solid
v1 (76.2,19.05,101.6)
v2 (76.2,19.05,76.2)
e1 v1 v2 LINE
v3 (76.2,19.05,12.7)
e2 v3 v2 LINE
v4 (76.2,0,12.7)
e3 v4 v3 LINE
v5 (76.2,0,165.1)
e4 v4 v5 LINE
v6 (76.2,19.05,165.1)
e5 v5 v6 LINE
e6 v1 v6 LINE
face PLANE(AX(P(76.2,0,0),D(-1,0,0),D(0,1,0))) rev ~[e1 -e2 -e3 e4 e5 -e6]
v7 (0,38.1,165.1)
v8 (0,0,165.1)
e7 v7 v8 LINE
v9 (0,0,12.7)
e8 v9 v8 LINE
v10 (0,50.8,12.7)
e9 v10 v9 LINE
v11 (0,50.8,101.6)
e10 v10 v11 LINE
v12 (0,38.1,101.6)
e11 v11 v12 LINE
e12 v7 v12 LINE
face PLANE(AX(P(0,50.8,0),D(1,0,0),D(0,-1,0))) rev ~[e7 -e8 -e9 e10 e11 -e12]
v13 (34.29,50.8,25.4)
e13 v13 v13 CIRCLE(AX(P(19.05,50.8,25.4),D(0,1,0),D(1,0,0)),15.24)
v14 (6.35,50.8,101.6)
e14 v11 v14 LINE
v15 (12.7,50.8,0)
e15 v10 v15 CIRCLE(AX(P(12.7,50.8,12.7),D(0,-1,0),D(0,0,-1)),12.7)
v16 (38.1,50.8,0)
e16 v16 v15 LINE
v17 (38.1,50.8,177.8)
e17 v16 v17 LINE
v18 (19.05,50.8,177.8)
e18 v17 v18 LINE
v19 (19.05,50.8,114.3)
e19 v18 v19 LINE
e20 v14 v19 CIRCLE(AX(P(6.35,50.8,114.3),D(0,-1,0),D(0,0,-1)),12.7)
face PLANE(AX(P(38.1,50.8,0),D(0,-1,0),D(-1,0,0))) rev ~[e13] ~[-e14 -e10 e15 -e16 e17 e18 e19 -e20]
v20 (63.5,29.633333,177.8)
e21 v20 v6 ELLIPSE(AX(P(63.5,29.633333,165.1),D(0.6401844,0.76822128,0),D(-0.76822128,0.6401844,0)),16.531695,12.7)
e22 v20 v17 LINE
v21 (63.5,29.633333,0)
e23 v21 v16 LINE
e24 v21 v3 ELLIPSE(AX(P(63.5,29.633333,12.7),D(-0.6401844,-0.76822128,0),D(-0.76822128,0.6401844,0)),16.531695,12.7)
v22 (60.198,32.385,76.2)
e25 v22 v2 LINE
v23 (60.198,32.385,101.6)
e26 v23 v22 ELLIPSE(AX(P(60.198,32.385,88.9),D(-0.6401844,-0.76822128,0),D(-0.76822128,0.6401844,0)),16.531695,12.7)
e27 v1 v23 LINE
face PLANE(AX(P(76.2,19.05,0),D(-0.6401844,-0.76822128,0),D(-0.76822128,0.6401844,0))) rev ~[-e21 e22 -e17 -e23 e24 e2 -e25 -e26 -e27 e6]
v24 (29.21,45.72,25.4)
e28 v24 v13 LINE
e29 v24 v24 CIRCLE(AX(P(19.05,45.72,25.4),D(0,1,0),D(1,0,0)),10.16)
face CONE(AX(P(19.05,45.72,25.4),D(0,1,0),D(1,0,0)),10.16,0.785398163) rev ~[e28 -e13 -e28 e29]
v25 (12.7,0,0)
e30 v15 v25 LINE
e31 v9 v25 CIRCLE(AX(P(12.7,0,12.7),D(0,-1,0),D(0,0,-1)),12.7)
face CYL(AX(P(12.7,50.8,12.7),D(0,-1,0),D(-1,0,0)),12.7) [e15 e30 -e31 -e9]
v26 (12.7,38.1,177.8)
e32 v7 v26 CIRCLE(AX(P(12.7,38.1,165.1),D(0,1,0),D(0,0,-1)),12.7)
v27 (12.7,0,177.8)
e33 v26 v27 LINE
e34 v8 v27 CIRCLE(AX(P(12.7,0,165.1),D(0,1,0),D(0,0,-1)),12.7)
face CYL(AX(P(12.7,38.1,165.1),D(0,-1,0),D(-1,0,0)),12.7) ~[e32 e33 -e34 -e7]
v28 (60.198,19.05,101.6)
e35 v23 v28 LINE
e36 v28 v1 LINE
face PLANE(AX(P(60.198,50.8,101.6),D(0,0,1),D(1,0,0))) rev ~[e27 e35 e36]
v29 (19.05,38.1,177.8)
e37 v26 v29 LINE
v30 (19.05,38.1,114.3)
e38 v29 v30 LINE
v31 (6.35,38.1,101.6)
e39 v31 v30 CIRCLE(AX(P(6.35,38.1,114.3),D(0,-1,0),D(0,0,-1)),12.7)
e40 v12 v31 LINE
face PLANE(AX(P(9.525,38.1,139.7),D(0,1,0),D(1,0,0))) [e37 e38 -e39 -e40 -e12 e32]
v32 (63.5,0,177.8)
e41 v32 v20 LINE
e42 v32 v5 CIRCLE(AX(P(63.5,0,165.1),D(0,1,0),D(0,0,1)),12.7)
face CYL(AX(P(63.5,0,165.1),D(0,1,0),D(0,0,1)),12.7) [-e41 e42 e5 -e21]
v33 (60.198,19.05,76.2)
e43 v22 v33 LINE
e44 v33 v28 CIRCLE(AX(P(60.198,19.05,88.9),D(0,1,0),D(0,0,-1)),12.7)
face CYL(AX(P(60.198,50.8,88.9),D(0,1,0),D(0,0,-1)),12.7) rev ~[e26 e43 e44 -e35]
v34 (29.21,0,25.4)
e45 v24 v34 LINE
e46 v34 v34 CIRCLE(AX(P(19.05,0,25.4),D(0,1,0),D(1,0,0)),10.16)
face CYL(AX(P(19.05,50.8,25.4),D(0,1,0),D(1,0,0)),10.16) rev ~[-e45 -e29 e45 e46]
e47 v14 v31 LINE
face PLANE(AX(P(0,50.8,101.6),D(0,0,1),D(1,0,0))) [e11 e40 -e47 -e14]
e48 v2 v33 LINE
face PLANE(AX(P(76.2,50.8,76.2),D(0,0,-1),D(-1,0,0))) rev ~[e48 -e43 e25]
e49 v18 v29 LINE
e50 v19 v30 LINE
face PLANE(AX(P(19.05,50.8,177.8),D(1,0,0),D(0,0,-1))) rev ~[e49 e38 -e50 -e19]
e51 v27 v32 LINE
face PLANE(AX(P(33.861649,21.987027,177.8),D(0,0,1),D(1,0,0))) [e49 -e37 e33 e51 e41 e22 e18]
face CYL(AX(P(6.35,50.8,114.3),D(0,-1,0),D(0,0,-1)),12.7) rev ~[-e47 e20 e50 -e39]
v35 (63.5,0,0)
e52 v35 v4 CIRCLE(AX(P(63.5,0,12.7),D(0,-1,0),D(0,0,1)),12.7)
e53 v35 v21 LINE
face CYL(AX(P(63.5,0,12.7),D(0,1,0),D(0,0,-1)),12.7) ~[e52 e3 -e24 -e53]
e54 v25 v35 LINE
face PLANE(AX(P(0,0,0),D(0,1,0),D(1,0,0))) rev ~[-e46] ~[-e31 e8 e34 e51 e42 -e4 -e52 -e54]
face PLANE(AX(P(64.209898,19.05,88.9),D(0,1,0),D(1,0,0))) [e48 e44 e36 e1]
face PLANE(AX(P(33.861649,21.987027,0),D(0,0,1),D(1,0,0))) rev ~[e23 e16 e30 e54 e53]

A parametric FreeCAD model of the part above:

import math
import FreeCAD as App
import Part
import Sketcher
Q = App.Units.Quantity


def edges_at(feature, points):
    """Names of the edges that pass closest to the given points."""
    edges = feature.Shape.Edges
    near = lambda p: min(range(len(edges)), key=lambda i: edges[i].distToShape(Part.Vertex(*p))[0])
    return sorted({f"Edge{near(p) + 1}" for p in points})


def add_polygon(sketch, points):
    """Adds a closed chain of lines whose ends are joined by coincident constraints."""
    first, n = sketch.GeometryCount, len(points)
    for a, b in zip(points, points[1:] + points[:1]):
        sketch.addGeometry(Part.LineSegment(App.Vector(*a, 0), App.Vector(*b, 0)), False)
    for i in range(n):
        sketch.addConstraint(Sketcher.Constraint("Coincident", first + i, 2, first + (i + 1) % n, 1))

doc = App.newDocument("Part")
body = doc.addObject("PartDesign::Body", "Body")

# Sketch on XY plane
sketch1 = body.newObject("Sketcher::SketchObject", "Sketch")
sketch1.AttachmentSupport = (doc.getObject("XY_Plane"), [""])
sketch1.MapMode = "FlatFace"
add_polygon(sketch1, [(0, 0), (76, 0), (76, 19), (38, 51), (0, 51)])  # lines 0-4
sketch1.addConstraint(Sketcher.Constraint("Horizontal", 0))
sketch1.addConstraint(Sketcher.Constraint("Vertical", 1))
sketch1.addConstraint(Sketcher.Constraint("Horizontal", 3))
sketch1.addConstraint(Sketcher.Constraint("Vertical", 4))
sketch1.addConstraint(Sketcher.Constraint("Coincident", 4, 2, -1, 1))
sketch1.addConstraint(Sketcher.Constraint("DistanceX", 0, 1, 0, 2, Q("3 in")))
sketch1.addConstraint(Sketcher.Constraint("DistanceY", 4, 2, 4, 1, Q("2 in")))
sketch1.addConstraint(Sketcher.Constraint("DistanceX", 3, 2, 3, 1, Q("1.5 in")))
sketch1.addConstraint(Sketcher.Constraint("DistanceY", 1, 1, 1, 2, Q("0.75 in")))
pad1 = body.newObject("PartDesign::Pad", "Pad")
pad1.Profile = sketch1
pad1.Length = Q("7 in")

# Sketch on XZ plane
sketch2 = body.newObject("Sketcher::SketchObject", "Sketch001")
sketch2.AttachmentSupport = (doc.getObject("XZ_Plane"), [""])
sketch2.MapMode = "FlatFace"
sketch2.AttachmentOffset = App.Placement(App.Vector(0, 0, -2 * 25.4), App.Rotation())
sketch2.addGeometry(Part.Circle(App.Vector(19, 25, 0), App.Vector(0, 0, 1), 10), False)
sketch2.addConstraint(Sketcher.Constraint("Diameter", 0, Q("0.8 in")))
sketch2.addConstraint(Sketcher.Constraint("DistanceY", -1, 1, 0, 3, Q("1 in")))
sketch2.addConstraint(Sketcher.Constraint("DistanceX", -1, 1, 0, 3, Q("0.75 in")))
pocket1 = body.newObject("PartDesign::Pocket", "Pocket")
pocket1.Profile = sketch2
pocket1.Type = "ThroughAll"
pocket1.Reversed = True
doc.recompute()

chamfer = body.newObject("PartDesign::Chamfer", "Chamfer")
chamfer.Base = (pocket1, edges_at(pocket1, [(8.89, 50.8, 25.4)]))
chamfer.Size = Q("0.2 in")

# Sketch on XZ plane
sketch3 = body.newObject("Sketcher::SketchObject", "Sketch002")
sketch3.AttachmentSupport = (doc.getObject("XZ_Plane"), [""])
sketch3.MapMode = "FlatFace"
sketch3.AttachmentOffset = App.Placement(App.Vector(0, 0, -2 * 25.4), App.Rotation())
add_polygon(sketch3, [(0, 102), (0, 178), (19, 178), (19, 102)])  # lines 0-3
sketch3.addConstraint(Sketcher.Constraint("Vertical", 0))
sketch3.addConstraint(Sketcher.Constraint("Horizontal", 1))
sketch3.addConstraint(Sketcher.Constraint("Vertical", 2))
sketch3.addConstraint(Sketcher.Constraint("Horizontal", 3))
sketch3.addConstraint(Sketcher.Constraint("PointOnObject", 0, 2, -2))
sketch3.addConstraint(Sketcher.Constraint("DistanceY", 0, 1, 0, 2, Q("3 in")))
sketch3.addConstraint(Sketcher.Constraint("DistanceY", -1, 1, 0, 2, Q("7 in")))
sketch3.addConstraint(Sketcher.Constraint("DistanceX", 1, 1, 1, 2, Q("0.75 in")))
pocket2 = body.newObject("PartDesign::Pocket", "Pocket001")
pocket2.Profile = sketch3
pocket2.Length = Q("0.5 in")
pocket2.Reversed = True
doc.recompute()

fillet = body.newObject("PartDesign::Fillet", "Fillet")
fillet.Base = (pocket2, edges_at(pocket2, [(19.05, 44.45, 101.6)]))
fillet.Radius = Q("0.5 in")
doc.recompute()

fillet2 = body.newObject("PartDesign::Fillet", "Fillet001")
fillet2.Base = (fillet, edges_at(fillet, [
    (76.2, 9.525, 177.8),
    (0, 19.05, 177.8),
    (76.2, 9.525, 0),
    (0, 25.4, 0),
]))
fillet2.Radius = Q("0.5 in")

# Sketch on XZ plane
sketch4 = body.newObject("Sketcher::SketchObject", "Sketch003")
sketch4.AttachmentSupport = (doc.getObject("XZ_Plane"), [""])
sketch4.MapMode = "FlatFace"
sketch4.AttachmentOffset = App.Placement(App.Vector(0, 0, -2 * 25.4), App.Rotation())
sketch4.addGeometry(Part.LineSegment(App.Vector(76, 76, 0), App.Vector(60, 76, 0)), False)
sketch4.addGeometry(Part.ArcOfCircle(Part.Circle(App.Vector(60, 89, 0), App.Vector(0, 0, 1), 13), math.radians(90), math.radians(270)), False)
sketch4.addGeometry(Part.LineSegment(App.Vector(60, 102, 0), App.Vector(76, 102, 0)), False)
sketch4.addGeometry(Part.LineSegment(App.Vector(76, 102, 0), App.Vector(76, 76, 0)), False)
sketch4.addConstraint(Sketcher.Constraint("Tangent", 0, 2, 1, 2))
sketch4.addConstraint(Sketcher.Constraint("Tangent", 1, 1, 2, 1))
sketch4.addConstraint(Sketcher.Constraint("Coincident", 2, 2, 3, 1))
sketch4.addConstraint(Sketcher.Constraint("Coincident", 3, 2, 0, 1))
sketch4.addConstraint(Sketcher.Constraint("Horizontal", 0))
sketch4.addConstraint(Sketcher.Constraint("Horizontal", 2))
sketch4.addConstraint(Sketcher.Constraint("Vertical", 3))
sketch4.addConstraint(Sketcher.Constraint("Radius", 1, Q("0.5 in")))
sketch4.addConstraint(Sketcher.Constraint("DistanceY", -1, 1, 0, 2, Q("3 in")))
sketch4.addConstraint(Sketcher.Constraint("DistanceX", -1, 1, 2, 2, Q("3 in")))
sketch4.addConstraint(Sketcher.Constraint("DistanceX", 0, 2, 0, 1, Q("0.63 in")))
pocket3 = body.newObject("PartDesign::Pocket", "Pocket002")
pocket3.Profile = sketch4
pocket3.Length = Q("1.25 in")
pocket3.Reversed = True

doc.recompute()
